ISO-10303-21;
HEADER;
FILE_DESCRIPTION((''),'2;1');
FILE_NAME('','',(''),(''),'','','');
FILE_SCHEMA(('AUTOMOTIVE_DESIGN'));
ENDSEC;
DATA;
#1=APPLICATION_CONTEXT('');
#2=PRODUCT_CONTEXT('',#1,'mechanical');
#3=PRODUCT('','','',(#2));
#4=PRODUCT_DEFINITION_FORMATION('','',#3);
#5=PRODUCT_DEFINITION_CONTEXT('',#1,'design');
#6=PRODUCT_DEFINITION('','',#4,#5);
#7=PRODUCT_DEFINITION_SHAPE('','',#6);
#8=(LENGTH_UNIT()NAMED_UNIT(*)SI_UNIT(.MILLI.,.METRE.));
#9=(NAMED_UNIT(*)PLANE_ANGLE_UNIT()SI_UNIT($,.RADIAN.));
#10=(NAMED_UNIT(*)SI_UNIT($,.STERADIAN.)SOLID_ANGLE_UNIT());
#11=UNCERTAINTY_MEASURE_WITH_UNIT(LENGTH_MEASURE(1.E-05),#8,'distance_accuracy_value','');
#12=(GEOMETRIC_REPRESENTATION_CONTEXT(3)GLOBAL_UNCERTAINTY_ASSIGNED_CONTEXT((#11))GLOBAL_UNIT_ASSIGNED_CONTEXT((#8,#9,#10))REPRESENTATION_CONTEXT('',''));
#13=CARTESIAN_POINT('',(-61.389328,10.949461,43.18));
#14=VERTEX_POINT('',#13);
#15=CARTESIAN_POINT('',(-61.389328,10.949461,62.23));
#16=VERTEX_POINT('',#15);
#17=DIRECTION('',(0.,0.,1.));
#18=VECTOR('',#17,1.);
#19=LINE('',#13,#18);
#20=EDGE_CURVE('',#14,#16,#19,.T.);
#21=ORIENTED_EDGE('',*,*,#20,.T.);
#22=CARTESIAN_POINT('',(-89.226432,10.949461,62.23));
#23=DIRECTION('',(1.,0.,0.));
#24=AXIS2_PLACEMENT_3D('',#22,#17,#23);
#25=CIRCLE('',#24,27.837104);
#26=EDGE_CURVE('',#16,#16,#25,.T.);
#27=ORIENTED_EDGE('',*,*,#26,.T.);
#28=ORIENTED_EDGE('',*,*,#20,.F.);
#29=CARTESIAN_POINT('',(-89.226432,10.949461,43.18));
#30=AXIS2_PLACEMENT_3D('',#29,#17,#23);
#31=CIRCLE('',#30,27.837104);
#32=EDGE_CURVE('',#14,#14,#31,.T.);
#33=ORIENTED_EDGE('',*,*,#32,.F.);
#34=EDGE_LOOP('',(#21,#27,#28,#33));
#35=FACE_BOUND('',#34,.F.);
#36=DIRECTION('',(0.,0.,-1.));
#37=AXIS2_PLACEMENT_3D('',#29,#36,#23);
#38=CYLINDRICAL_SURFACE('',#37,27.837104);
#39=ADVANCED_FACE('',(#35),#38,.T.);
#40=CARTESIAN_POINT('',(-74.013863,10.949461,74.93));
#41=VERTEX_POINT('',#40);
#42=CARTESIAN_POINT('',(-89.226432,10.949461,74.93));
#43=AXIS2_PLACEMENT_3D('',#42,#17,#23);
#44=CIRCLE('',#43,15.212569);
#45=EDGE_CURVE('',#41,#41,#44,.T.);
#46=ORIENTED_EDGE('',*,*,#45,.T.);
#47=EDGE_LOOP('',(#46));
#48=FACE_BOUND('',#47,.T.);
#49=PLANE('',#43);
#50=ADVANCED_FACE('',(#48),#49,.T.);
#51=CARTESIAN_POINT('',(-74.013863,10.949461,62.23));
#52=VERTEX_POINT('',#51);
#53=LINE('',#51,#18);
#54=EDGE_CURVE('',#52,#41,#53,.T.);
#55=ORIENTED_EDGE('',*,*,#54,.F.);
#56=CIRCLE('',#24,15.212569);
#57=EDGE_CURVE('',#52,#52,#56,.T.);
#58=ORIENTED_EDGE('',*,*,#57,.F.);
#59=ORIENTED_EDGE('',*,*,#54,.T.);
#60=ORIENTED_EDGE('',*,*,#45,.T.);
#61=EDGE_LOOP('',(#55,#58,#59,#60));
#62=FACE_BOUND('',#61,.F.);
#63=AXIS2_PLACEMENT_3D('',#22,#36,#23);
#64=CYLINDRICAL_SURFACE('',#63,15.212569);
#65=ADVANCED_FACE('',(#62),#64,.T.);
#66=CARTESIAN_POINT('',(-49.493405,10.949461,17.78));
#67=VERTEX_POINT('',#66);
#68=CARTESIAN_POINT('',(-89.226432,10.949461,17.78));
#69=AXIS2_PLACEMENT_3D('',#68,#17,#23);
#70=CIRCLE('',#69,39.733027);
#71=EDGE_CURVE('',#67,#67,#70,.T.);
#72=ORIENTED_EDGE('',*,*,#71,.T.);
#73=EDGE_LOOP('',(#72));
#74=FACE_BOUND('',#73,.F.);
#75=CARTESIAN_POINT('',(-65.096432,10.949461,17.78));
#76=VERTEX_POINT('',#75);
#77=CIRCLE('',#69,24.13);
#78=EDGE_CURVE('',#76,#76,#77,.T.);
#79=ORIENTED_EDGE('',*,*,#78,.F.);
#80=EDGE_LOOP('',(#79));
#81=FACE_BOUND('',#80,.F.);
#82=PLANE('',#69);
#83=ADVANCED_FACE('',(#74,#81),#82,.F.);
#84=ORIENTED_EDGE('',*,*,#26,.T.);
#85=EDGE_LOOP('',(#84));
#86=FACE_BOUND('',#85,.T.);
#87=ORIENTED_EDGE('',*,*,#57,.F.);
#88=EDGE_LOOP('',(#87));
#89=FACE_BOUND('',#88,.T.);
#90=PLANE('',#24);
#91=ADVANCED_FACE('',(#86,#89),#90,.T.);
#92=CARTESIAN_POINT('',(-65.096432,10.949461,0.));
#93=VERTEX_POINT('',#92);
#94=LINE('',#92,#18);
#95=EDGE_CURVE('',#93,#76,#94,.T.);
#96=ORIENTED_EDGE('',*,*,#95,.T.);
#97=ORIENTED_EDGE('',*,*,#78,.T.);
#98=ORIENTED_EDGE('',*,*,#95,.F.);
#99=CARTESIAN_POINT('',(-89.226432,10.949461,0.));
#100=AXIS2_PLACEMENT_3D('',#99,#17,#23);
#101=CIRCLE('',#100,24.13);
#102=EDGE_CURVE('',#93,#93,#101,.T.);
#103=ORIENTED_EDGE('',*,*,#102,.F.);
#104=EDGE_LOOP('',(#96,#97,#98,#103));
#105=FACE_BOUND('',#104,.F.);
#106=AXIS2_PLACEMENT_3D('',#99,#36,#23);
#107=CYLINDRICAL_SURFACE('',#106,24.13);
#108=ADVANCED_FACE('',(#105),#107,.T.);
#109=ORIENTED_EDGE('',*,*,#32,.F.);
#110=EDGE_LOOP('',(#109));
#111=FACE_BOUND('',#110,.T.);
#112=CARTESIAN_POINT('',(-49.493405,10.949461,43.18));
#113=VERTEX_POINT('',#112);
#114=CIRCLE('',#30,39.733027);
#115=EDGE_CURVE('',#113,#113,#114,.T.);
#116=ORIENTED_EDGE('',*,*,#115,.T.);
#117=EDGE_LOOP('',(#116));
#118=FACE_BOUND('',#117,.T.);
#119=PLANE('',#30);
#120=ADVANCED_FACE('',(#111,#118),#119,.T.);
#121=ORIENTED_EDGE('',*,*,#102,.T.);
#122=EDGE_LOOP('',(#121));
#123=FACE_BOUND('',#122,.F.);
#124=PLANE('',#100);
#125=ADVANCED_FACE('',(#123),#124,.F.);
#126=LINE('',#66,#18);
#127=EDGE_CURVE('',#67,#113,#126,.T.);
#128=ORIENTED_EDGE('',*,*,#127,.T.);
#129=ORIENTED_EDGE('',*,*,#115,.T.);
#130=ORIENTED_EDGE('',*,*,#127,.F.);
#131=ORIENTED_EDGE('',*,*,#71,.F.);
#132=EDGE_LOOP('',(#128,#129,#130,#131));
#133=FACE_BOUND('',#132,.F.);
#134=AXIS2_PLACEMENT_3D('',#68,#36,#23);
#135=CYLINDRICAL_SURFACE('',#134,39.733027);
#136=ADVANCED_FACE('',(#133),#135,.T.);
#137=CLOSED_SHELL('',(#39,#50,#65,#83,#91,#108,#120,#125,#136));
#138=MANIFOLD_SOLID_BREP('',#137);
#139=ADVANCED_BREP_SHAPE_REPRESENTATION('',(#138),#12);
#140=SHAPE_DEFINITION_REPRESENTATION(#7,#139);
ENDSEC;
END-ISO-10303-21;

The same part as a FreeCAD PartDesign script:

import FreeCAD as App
import Part
import Sketcher

V = App.Vector
Q = App.Units.Quantity

doc = App.newDocument("Part")
params = doc.addObject("Spreadsheet::Sheet", "Params")
for row, (alias, value) in enumerate([
    ("sketch1_diameter", "1.9 in"),
    ("pad1_length", "0.7 in"),
    ("pad2_length", "1 in"),
    ("pad3_length", "0.75 in"),
    ("pad4_length", "0.5 in"),
], start=1):
    params.set(f"A{row}", alias)
    params.set(f"B{row}", "=" + value)
    params.setAlias(f"B{row}", alias)

body = doc.addObject("PartDesign::Body", "Body")

# Sketch on XY plane
sketch1 = doc.addObject("Sketcher::SketchObject", "Sketch")
body.addObject(sketch1)
sketch1.AttachmentSupport = (doc.XY_Plane, [""])
sketch1.MapMode = "FlatFace"
sketch1.addGeometry(Part.Circle(V(-89, 11, 0), V(0, 0, 1), 24), False)
sketch1.addConstraint([
    Sketcher.Constraint("Diameter", 0, Q("1.9 in")),
    Sketcher.Constraint("DistanceY", -1, 1, 0, 3, 10.949461),
    Sketcher.Constraint("DistanceX", 0, 3, -1, 1, 89.226432),
])
sketch1.setExpression("Constraints[0]", "Params.sketch1_diameter")
pad1 = doc.addObject("PartDesign::Pad", "Pad")
body.addObject(pad1)
pad1.Profile = sketch1
pad1.setExpression("Length", "Params.pad1_length")

# Sketch on XY plane
sketch2 = doc.addObject("Sketcher::SketchObject", "Sketch001")
body.addObject(sketch2)
sketch2.AttachmentSupport = (doc.XY_Plane, [""])
sketch2.MapMode = "FlatFace"
sketch2.AttachmentOffset = App.Placement(V(0, 0, 0.7 * 25.4), App.Rotation())
sketch2.addGeometry(Part.Circle(V(-89, 11, 0), V(0, 0, 1), 40), False)
sketch2.addConstraint([
    Sketcher.Constraint("Diameter", 0, 79.466054),
    Sketcher.Constraint("DistanceY", -1, 1, 0, 3, 10.949461),
    Sketcher.Constraint("DistanceX", 0, 3, -1, 1, 89.226432),
])
pad2 = doc.addObject("PartDesign::Pad", "Pad001")
body.addObject(pad2)
pad2.Profile = sketch2
pad2.setExpression("Length", "Params.pad2_length")

# Sketch on XY plane
sketch3 = doc.addObject("Sketcher::SketchObject", "Sketch002")
body.addObject(sketch3)
sketch3.AttachmentSupport = (doc.XY_Plane, [""])
sketch3.MapMode = "FlatFace"
sketch3.AttachmentOffset = App.Placement(V(0, 0, 1.7 * 25.4), App.Rotation())
sketch3.addGeometry(Part.Circle(V(-89, 11, 0), V(0, 0, 1), 28), False)
sketch3.addConstraint([
    Sketcher.Constraint("Diameter", 0, 55.674208),
    Sketcher.Constraint("DistanceY", -1, 1, 0, 3, 10.949461),
    Sketcher.Constraint("DistanceX", 0, 3, -1, 1, 89.226432),
])
pad3 = doc.addObject("PartDesign::Pad", "Pad002")
body.addObject(pad3)
pad3.Profile = sketch3
pad3.setExpression("Length", "Params.pad3_length")

# Sketch on XY plane
sketch4 = doc.addObject("Sketcher::SketchObject", "Sketch003")
body.addObject(sketch4)
sketch4.AttachmentSupport = (doc.XY_Plane, [""])
sketch4.MapMode = "FlatFace"
sketch4.AttachmentOffset = App.Placement(V(0, 0, 2.45 * 25.4), App.Rotation())
sketch4.addGeometry(Part.Circle(V(-89, 11, 0), V(0, 0, 1), 15), False)
sketch4.addConstraint([
    Sketcher.Constraint("Diameter", 0, 30.425138),
    Sketcher.Constraint("DistanceY", -1, 1, 0, 3, 10.949461),
    Sketcher.Constraint("DistanceX", 0, 3, -1, 1, 89.226432),
])
pad4 = doc.addObject("PartDesign::Pad", "Pad003")
body.addObject(pad4)
pad4.Profile = sketch4
pad4.setExpression("Length", "Params.pad4_length")

doc.recompute()
